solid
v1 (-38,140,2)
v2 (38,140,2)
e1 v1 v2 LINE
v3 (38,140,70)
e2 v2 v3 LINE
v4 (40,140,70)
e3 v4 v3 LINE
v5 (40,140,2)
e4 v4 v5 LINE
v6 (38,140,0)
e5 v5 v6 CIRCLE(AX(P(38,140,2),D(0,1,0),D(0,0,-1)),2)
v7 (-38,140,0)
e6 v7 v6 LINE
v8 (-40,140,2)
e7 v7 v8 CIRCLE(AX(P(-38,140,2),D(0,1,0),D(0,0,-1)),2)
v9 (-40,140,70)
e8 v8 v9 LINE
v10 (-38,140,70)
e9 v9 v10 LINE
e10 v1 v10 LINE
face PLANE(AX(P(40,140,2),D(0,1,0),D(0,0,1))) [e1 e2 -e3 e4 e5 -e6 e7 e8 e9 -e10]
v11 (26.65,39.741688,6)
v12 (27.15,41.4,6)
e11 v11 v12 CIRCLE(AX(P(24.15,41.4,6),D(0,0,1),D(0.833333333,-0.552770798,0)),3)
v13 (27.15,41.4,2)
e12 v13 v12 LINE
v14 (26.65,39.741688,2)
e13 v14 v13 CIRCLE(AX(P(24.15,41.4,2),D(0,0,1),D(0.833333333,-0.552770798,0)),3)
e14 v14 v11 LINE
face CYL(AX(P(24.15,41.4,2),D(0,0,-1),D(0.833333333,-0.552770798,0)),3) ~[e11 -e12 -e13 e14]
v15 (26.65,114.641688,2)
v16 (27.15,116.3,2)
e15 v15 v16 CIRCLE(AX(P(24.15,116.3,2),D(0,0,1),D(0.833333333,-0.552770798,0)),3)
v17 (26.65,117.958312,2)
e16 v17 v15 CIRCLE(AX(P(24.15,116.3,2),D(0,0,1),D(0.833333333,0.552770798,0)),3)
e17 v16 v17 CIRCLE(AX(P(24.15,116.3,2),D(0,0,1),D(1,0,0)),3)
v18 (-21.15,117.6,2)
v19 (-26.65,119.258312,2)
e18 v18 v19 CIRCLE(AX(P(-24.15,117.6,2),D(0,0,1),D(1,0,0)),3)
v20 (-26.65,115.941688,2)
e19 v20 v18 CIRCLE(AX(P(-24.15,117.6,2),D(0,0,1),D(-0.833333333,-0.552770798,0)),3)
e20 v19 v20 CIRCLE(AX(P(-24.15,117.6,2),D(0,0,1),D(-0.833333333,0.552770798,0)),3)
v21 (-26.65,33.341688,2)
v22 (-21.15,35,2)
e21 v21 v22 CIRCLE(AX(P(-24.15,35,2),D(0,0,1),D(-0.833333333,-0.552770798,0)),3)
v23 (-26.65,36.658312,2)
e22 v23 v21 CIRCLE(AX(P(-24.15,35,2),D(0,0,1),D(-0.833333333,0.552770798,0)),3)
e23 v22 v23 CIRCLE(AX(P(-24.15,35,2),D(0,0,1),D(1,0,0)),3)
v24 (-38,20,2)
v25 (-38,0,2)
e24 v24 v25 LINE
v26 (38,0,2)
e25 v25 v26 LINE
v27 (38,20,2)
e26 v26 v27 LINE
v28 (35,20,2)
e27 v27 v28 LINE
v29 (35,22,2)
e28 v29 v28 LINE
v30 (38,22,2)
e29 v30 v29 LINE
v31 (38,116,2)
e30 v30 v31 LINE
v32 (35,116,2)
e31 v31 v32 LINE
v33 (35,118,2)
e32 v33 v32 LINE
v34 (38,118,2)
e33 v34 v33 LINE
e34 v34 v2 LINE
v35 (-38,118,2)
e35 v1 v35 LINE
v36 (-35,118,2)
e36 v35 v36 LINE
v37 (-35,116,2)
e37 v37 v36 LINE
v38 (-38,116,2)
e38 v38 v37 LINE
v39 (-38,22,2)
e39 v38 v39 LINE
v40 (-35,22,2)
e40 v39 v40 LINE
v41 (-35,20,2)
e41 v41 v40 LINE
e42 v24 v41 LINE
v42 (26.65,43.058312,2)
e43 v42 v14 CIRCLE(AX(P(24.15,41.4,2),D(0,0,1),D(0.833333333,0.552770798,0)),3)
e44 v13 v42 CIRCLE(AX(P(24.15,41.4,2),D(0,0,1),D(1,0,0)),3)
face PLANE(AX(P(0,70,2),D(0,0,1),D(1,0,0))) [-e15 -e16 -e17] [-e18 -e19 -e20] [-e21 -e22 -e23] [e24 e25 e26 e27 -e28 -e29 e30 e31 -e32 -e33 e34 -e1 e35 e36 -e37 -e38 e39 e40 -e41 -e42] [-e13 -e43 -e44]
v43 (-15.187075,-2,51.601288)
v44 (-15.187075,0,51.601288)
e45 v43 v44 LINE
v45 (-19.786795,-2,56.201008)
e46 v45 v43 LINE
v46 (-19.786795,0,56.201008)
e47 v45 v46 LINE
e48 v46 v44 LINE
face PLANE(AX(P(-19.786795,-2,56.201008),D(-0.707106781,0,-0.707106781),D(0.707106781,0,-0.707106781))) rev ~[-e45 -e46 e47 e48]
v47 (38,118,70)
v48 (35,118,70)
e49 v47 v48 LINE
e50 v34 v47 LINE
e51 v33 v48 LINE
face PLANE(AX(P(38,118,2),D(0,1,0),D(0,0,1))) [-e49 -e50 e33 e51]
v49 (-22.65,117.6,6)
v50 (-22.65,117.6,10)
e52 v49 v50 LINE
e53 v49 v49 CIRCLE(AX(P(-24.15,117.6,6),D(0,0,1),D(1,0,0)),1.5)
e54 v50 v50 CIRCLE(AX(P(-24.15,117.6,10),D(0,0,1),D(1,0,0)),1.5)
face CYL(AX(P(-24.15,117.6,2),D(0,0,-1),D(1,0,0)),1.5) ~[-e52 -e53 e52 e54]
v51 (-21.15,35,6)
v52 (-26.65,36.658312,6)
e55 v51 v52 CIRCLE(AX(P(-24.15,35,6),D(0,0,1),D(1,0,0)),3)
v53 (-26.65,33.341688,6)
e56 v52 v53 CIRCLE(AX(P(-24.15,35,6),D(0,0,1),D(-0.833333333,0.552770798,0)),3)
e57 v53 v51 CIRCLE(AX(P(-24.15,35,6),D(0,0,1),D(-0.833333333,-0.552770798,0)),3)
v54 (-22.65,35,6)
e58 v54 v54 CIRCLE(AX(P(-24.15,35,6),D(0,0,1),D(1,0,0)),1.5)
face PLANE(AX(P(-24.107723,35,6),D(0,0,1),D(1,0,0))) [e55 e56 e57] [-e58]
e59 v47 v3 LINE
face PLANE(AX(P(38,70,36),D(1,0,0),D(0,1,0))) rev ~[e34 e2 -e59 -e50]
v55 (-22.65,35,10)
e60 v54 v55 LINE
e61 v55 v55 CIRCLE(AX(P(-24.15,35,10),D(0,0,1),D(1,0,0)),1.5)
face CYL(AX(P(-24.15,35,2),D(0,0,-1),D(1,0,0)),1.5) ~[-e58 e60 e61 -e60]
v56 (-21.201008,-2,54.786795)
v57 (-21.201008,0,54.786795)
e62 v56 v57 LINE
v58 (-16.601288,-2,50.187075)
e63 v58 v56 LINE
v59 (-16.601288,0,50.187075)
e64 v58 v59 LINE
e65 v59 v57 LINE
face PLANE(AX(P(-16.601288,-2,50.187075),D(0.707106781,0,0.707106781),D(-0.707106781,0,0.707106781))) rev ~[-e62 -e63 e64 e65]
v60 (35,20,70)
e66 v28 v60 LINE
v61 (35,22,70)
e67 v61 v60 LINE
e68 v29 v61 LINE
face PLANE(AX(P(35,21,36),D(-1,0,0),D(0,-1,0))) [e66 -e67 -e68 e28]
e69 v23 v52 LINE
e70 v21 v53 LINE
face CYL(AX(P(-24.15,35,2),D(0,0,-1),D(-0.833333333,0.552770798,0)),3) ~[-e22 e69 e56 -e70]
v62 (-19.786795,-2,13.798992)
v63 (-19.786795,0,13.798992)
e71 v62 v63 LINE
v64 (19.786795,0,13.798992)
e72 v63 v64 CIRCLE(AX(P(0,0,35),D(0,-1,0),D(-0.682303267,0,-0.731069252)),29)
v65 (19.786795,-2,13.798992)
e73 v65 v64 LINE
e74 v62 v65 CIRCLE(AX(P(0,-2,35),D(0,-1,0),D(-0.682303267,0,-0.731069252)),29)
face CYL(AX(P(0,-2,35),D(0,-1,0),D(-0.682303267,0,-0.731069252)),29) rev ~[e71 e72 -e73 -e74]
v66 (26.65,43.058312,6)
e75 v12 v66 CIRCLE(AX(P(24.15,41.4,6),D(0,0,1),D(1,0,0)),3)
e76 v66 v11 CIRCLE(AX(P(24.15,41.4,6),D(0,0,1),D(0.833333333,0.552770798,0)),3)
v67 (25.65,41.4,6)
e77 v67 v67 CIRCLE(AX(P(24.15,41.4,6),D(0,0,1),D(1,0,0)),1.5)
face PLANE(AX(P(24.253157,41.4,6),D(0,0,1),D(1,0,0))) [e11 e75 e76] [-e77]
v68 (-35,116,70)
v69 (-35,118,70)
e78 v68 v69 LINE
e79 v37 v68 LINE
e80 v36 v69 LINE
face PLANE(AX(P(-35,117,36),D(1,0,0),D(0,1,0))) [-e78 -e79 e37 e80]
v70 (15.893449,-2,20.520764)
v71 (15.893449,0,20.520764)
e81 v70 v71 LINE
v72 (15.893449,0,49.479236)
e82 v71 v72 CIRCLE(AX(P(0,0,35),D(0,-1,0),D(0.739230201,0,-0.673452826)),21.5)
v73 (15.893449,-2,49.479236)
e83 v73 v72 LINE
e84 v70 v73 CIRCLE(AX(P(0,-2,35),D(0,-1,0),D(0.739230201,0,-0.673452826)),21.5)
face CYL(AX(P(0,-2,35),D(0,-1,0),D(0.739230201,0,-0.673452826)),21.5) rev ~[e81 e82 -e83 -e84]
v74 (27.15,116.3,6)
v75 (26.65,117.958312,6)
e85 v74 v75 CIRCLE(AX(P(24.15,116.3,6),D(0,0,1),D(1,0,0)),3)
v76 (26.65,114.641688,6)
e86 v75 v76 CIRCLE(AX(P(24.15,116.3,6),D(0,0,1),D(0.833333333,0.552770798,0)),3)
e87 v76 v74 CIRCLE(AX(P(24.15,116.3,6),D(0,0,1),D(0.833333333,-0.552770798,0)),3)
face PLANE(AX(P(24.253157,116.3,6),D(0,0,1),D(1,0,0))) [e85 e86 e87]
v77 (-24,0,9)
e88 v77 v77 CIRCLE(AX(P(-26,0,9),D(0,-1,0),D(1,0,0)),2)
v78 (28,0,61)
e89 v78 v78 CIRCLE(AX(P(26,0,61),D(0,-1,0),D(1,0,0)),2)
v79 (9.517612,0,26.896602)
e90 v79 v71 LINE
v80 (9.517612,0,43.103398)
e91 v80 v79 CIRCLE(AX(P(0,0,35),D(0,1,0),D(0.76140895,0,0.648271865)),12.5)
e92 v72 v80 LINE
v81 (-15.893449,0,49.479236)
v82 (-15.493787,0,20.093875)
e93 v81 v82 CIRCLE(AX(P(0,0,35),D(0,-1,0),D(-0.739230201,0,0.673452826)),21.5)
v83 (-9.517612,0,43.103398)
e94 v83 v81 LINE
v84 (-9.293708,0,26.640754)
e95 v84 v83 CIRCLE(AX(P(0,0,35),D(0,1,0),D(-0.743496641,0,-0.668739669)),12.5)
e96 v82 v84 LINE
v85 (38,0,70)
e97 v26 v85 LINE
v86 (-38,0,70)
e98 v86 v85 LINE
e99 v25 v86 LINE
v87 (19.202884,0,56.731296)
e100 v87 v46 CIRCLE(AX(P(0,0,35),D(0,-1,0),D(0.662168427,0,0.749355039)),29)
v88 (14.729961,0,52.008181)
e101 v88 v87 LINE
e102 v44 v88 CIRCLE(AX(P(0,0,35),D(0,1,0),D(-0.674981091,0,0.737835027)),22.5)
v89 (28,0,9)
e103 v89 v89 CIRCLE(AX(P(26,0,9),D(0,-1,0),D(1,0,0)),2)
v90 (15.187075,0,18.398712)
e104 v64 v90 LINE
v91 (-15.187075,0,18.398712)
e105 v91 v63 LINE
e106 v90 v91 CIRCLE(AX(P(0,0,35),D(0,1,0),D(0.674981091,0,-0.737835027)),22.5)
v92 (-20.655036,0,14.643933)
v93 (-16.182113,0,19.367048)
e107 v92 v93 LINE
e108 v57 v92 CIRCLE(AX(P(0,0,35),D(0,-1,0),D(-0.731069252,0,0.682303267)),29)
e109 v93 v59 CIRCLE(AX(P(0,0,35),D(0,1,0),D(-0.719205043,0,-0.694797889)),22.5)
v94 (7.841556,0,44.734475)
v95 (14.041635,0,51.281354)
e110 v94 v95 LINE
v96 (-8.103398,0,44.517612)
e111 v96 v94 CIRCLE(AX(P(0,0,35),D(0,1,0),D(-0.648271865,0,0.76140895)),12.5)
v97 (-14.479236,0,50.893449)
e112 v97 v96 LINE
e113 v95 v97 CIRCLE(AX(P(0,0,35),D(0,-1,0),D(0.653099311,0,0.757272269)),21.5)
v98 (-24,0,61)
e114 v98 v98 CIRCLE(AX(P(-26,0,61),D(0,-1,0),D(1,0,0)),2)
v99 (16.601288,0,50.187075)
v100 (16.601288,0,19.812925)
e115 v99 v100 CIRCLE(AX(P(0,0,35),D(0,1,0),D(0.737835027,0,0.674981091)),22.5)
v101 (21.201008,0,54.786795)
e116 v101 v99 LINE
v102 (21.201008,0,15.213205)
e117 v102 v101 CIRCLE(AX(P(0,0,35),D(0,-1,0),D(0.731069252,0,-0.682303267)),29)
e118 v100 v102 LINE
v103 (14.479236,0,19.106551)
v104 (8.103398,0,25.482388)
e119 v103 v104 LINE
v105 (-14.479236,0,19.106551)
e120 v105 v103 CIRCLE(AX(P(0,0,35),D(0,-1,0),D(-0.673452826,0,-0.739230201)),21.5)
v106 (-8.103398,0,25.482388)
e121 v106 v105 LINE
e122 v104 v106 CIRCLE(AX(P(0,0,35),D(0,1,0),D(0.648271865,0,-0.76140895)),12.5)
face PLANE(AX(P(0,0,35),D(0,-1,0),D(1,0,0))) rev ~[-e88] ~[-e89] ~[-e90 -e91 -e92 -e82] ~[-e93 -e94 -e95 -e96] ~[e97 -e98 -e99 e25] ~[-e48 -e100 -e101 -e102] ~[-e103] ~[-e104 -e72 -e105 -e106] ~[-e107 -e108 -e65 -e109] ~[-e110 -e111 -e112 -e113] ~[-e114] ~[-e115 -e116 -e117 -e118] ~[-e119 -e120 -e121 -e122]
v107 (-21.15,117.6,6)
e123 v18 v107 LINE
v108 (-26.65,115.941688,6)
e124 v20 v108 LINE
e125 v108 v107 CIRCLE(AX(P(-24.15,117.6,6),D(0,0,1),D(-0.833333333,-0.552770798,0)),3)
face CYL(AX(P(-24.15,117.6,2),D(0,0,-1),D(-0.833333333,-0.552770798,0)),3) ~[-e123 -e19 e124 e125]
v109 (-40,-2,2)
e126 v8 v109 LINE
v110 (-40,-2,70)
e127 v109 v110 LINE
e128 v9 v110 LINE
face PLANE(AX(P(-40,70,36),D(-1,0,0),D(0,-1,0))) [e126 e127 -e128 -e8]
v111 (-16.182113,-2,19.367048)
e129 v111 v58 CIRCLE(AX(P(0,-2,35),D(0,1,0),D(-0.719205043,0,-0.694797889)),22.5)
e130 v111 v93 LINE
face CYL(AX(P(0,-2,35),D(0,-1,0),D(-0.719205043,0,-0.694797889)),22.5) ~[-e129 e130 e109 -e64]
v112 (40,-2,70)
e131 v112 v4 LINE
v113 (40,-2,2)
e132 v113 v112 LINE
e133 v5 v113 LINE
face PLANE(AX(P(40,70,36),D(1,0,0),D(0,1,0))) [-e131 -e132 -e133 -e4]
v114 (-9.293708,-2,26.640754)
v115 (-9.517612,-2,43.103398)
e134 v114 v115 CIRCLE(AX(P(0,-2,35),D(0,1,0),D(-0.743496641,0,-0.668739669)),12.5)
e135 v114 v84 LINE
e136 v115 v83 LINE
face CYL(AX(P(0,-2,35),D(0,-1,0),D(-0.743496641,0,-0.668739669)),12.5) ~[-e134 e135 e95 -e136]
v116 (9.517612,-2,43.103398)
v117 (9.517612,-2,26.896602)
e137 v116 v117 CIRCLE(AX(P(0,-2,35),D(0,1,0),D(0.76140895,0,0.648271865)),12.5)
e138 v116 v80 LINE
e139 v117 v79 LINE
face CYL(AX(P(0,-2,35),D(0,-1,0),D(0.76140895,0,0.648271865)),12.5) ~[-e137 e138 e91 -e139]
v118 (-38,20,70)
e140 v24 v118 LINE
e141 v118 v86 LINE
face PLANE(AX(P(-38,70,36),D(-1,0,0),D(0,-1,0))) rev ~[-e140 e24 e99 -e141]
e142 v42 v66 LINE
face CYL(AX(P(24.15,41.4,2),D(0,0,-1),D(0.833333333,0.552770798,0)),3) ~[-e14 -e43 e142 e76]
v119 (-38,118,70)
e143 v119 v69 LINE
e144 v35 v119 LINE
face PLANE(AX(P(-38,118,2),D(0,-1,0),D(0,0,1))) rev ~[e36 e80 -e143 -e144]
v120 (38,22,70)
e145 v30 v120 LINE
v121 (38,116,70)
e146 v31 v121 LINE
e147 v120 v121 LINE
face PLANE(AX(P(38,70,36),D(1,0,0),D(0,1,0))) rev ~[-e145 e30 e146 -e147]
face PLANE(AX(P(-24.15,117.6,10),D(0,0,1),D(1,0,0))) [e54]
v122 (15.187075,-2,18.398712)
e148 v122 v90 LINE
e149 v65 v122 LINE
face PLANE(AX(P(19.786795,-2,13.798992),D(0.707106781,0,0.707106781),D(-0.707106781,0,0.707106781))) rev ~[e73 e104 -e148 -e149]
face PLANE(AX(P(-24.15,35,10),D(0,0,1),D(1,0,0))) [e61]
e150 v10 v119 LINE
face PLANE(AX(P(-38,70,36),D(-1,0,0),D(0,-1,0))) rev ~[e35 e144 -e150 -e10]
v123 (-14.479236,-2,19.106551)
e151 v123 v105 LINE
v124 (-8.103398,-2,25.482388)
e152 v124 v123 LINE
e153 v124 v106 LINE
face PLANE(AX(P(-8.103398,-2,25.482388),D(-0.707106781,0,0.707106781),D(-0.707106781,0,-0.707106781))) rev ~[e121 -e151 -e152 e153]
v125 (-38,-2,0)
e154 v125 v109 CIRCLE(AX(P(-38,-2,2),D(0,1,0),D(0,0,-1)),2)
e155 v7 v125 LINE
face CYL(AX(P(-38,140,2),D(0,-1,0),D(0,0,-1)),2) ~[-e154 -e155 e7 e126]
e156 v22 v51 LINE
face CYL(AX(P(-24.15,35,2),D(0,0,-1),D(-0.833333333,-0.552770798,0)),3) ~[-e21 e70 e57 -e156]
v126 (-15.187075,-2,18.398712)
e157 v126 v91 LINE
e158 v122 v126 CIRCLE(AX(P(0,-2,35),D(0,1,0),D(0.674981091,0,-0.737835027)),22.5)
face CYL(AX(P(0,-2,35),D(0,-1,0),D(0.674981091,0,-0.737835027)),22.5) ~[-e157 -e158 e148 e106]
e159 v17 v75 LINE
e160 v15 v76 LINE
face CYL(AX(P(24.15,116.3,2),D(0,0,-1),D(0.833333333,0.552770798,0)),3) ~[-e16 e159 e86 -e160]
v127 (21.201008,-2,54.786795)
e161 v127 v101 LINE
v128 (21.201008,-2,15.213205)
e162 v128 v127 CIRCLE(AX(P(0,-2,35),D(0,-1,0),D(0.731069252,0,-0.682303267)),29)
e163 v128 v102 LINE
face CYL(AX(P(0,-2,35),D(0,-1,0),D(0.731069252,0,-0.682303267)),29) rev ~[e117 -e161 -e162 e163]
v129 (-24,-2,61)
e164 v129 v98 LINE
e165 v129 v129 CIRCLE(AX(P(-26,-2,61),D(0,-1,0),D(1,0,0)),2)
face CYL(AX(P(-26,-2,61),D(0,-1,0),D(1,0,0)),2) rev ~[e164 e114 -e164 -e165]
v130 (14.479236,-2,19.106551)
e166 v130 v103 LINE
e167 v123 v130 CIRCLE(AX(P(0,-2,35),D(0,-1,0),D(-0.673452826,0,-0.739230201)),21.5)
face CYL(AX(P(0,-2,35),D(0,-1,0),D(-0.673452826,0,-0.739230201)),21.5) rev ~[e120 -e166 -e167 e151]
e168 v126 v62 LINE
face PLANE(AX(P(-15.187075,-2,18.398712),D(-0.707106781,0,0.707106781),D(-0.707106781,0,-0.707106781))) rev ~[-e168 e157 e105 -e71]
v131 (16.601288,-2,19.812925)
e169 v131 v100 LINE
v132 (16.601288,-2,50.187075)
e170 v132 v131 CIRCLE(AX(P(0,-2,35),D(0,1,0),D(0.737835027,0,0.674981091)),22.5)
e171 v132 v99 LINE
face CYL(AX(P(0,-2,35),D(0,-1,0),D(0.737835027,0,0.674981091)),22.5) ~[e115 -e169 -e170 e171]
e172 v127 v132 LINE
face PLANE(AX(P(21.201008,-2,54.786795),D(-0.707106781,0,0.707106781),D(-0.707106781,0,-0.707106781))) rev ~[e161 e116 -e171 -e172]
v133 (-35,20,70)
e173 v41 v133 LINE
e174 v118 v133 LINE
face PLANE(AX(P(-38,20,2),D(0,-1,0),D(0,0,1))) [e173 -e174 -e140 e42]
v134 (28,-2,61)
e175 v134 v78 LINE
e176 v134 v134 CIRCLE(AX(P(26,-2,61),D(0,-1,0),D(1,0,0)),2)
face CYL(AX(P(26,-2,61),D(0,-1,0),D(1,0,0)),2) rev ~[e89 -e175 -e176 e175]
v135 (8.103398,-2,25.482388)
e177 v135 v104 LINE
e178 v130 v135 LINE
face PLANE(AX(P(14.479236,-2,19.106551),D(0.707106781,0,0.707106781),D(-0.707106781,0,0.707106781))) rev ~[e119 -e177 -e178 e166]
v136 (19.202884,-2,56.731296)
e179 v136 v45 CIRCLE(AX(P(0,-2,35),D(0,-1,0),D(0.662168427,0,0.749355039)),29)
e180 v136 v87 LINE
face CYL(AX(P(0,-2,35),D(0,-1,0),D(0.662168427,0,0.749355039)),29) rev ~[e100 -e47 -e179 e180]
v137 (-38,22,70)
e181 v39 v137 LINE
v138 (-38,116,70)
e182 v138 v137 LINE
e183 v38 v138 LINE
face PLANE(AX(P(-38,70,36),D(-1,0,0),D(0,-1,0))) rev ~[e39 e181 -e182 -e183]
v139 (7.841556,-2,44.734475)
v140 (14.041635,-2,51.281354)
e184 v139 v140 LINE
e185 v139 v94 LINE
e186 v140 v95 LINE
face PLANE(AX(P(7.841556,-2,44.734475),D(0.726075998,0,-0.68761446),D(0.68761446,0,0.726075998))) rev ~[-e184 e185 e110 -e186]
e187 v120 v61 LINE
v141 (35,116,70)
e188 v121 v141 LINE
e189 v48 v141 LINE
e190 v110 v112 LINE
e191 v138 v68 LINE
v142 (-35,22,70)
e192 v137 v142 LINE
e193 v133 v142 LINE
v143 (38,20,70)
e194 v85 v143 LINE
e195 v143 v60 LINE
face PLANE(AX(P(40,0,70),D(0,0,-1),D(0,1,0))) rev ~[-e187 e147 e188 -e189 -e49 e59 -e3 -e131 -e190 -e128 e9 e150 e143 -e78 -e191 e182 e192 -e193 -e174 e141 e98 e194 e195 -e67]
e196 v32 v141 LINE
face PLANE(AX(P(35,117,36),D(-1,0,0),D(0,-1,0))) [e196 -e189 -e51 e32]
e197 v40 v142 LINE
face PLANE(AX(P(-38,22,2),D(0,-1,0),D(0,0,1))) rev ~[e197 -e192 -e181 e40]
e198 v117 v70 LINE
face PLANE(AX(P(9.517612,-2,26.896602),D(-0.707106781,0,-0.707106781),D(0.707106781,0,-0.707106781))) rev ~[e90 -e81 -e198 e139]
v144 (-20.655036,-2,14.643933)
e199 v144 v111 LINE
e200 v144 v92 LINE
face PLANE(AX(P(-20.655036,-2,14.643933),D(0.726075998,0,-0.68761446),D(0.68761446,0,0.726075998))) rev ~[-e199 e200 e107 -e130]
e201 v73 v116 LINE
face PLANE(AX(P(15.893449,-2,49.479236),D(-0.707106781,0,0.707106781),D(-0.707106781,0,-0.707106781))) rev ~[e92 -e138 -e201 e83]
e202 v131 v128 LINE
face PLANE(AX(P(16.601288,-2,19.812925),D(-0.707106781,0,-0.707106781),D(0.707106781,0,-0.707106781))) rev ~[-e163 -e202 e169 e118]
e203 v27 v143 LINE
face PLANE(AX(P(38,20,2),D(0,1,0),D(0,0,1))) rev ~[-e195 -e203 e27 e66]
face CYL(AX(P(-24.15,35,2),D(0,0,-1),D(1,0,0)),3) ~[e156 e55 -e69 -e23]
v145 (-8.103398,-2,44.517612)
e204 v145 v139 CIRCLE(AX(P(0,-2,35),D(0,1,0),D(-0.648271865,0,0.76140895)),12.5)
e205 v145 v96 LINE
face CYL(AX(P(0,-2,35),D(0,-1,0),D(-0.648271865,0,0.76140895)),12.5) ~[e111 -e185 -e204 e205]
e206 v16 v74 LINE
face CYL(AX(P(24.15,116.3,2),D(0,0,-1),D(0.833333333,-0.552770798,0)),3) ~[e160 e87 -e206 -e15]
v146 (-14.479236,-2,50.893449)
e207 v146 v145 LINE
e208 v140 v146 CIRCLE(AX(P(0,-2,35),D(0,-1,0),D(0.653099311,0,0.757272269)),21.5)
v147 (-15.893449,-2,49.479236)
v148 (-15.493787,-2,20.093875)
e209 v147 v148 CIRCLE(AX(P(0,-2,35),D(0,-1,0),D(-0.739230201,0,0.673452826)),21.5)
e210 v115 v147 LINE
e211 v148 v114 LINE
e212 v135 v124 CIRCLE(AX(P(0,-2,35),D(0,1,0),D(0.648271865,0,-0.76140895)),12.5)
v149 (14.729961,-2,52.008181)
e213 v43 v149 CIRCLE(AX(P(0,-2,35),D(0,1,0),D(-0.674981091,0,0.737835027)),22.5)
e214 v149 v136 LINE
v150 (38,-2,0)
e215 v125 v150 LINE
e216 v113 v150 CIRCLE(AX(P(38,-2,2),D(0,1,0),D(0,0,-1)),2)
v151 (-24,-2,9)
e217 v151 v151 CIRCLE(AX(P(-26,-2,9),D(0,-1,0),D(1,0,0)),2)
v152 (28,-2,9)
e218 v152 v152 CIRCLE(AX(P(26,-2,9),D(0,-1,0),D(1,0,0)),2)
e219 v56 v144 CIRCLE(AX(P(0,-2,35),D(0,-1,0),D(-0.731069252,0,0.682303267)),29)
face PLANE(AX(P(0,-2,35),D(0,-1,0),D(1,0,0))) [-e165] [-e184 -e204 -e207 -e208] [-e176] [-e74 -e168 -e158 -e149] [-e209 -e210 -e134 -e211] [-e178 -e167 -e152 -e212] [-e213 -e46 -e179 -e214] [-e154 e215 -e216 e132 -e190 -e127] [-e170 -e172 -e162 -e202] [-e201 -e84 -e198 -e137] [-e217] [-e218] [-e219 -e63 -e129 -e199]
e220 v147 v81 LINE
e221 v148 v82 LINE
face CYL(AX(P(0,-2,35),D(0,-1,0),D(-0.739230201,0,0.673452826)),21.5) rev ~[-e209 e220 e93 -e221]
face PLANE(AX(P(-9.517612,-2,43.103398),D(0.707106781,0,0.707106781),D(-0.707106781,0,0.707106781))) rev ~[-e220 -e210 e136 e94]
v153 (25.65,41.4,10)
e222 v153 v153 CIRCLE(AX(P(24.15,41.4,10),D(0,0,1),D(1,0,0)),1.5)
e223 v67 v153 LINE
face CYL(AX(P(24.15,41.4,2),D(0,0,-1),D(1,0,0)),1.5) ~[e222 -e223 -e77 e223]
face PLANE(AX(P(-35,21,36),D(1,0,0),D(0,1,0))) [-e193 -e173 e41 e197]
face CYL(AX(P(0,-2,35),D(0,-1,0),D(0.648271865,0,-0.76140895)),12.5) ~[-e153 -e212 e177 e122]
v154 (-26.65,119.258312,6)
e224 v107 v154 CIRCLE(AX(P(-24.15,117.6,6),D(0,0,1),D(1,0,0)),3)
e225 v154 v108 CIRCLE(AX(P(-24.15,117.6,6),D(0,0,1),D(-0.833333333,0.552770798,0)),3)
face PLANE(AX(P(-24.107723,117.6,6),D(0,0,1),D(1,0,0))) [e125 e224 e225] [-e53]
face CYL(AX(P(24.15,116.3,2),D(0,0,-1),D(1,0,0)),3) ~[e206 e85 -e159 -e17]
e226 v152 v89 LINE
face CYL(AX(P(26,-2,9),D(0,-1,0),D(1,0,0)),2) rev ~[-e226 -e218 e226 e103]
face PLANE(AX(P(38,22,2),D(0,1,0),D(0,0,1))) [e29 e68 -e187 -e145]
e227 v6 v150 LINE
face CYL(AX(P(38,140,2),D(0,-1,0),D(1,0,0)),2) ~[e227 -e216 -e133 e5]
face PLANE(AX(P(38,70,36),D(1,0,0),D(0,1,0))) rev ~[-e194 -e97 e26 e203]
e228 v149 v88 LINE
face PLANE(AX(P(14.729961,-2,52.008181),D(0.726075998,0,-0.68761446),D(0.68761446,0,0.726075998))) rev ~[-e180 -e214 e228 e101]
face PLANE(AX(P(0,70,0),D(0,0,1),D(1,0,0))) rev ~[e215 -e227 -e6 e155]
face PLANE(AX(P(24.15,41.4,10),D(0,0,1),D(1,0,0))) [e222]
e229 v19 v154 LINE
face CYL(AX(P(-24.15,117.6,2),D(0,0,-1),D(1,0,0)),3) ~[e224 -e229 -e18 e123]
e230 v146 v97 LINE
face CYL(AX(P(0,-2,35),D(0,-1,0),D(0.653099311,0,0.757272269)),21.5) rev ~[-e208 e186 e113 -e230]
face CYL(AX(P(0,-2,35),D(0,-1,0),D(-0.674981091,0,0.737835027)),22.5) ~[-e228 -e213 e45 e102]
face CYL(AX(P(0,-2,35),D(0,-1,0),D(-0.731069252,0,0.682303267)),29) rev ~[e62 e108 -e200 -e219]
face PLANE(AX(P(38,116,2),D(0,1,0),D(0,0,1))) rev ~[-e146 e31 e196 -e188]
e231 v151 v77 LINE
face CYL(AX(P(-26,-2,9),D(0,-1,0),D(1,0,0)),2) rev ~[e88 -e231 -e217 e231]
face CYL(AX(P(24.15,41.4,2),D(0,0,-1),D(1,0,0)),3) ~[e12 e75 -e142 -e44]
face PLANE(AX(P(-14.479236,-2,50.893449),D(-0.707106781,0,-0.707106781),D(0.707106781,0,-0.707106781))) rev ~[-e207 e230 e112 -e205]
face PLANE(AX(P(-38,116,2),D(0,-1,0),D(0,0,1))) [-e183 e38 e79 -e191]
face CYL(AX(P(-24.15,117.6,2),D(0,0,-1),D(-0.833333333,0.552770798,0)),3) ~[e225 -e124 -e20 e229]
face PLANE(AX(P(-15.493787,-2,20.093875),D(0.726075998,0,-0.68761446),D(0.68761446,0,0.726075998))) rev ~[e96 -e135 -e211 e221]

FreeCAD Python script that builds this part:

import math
import FreeCAD as App
import Part
import Sketcher
from FreeCAD import Vector
Q = App.Units.Quantity


def edges_at(feature, points):
    """Names of the edges that pass closest to the given points."""
    edges = feature.Shape.Edges
    near = lambda p: min(range(len(edges)), key=lambda i: edges[i].distToShape(Part.Vertex(*p))[0])
    return sorted({f"Edge{near(p) + 1}" for p in points})

doc = App.newDocument("Part")
body = doc.addObject("PartDesign::Body", "Body")

sketch1 = body.newObject("Sketcher::SketchObject", "Sketch")
sketch1.AttachmentSupport = (doc.getObject("XZ_Plane"), [""])
sketch1.MapMode = "FlatFace"
sketch1.addGeometry(Part.LineSegment(Vector(-40, 70, 0), Vector(-40, 0, 0)), False)
sketch1.addGeometry(Part.LineSegment(Vector(-40, 0, 0), Vector(40, 0, 0)), False)
sketch1.addGeometry(Part.LineSegment(Vector(40, 0, 0), Vector(40, 70, 0)), False)
sketch1.addGeometry(Part.LineSegment(Vector(40, 70, 0), Vector(-40, 70, 0)), False)
sketch1.addConstraint(Sketcher.Constraint("Coincident", 0, 2, 1, 1))
sketch1.addConstraint(Sketcher.Constraint("Coincident", 1, 2, 2, 1))
sketch1.addConstraint(Sketcher.Constraint("Coincident", 2, 2, 3, 1))
sketch1.addConstraint(Sketcher.Constraint("Coincident", 3, 2, 0, 1))
sketch1.addConstraint(Sketcher.Constraint("Vertical", 0))
sketch1.addConstraint(Sketcher.Constraint("Horizontal", 1))
sketch1.addConstraint(Sketcher.Constraint("Vertical", 2))
sketch1.addConstraint(Sketcher.Constraint("Horizontal", 3))
sketch1.addConstraint(Sketcher.Constraint("Symmetric", 0, 2, 1, 2, -1, 1))
sketch1.addConstraint(Sketcher.Constraint("DistanceX", 1, 1, 1, 2, Q("80 mm")))
sketch1.addConstraint(Sketcher.Constraint("DistanceY", 0, 2, 0, 1, Q("70 mm")))
pad1 = body.newObject("PartDesign::Pad", "Pad")
pad1.Profile = sketch1
pad1.Length = 2

sketch2 = body.newObject("Sketcher::SketchObject", "Sketch001")
sketch2.AttachmentSupport = (doc.getObject("XY_Plane"), [""])
sketch2.MapMode = "FlatFace"
sketch2.addGeometry(Part.LineSegment(Vector(-40, 140, 0), Vector(-40, 0, 0)), False)
sketch2.addGeometry(Part.LineSegment(Vector(-40, 0, 0), Vector(40, 0, 0)), False)
sketch2.addGeometry(Part.LineSegment(Vector(40, 0, 0), Vector(40, 140, 0)), False)
sketch2.addGeometry(Part.LineSegment(Vector(40, 140, 0), Vector(-40, 140, 0)), False)
sketch2.addConstraint(Sketcher.Constraint("Coincident", 0, 2, 1, 1))
sketch2.addConstraint(Sketcher.Constraint("Coincident", 1, 2, 2, 1))
sketch2.addConstraint(Sketcher.Constraint("Coincident", 2, 2, 3, 1))
sketch2.addConstraint(Sketcher.Constraint("Coincident", 3, 2, 0, 1))
sketch2.addConstraint(Sketcher.Constraint("Vertical", 0))
sketch2.addConstraint(Sketcher.Constraint("Horizontal", 1))
sketch2.addConstraint(Sketcher.Constraint("Vertical", 2))
sketch2.addConstraint(Sketcher.Constraint("Horizontal", 3))
sketch2.addConstraint(Sketcher.Constraint("Symmetric", 0, 2, 1, 2, -1, 1))
sketch2.addConstraint(Sketcher.Constraint("DistanceX", 1, 1, 1, 2, Q("80 mm")))
sketch2.addConstraint(Sketcher.Constraint("DistanceY", 0, 2, 0, 1, Q("140 mm")))
pad2 = body.newObject("PartDesign::Pad", "Pad001")
pad2.Profile = sketch2
pad2.Length = 2

sketch3 = body.newObject("Sketcher::SketchObject", "Sketch002")
sketch3.AttachmentSupport = (doc.getObject("YZ_Plane"), [""])
sketch3.MapMode = "FlatFace"
sketch3.AttachmentOffset = App.Placement(Vector(0, 0, -40), App.Rotation())
sketch3.addGeometry(Part.LineSegment(Vector(140, 70, 0), Vector(140, 2, 0)), False)
sketch3.addGeometry(Part.LineSegment(Vector(140, 2, 0), Vector(0, 2, 0)), False)
sketch3.addGeometry(Part.LineSegment(Vector(0, 2, 0), Vector(0, 70, 0)), False)
sketch3.addGeometry(Part.LineSegment(Vector(0, 70, 0), Vector(140, 70, 0)), False)
sketch3.addConstraint(Sketcher.Constraint("Coincident", 0, 2, 1, 1))
sketch3.addConstraint(Sketcher.Constraint("Coincident", 1, 2, 2, 1))
sketch3.addConstraint(Sketcher.Constraint("Coincident", 2, 2, 3, 1))
sketch3.addConstraint(Sketcher.Constraint("Coincident", 3, 2, 0, 1))
sketch3.addConstraint(Sketcher.Constraint("Vertical", 0))
sketch3.addConstraint(Sketcher.Constraint("Horizontal", 1))
sketch3.addConstraint(Sketcher.Constraint("Vertical", 2))
sketch3.addConstraint(Sketcher.Constraint("Horizontal", 3))
sketch3.addConstraint(Sketcher.Constraint("PointOnObject", 1, 2, -2))
sketch3.addConstraint(Sketcher.Constraint("DistanceX", 1, 2, 1, 1, Q("140 mm")))
sketch3.addConstraint(Sketcher.Constraint("DistanceY", 0, 2, 0, 1, Q("68 mm")))
sketch3.addConstraint(Sketcher.Constraint("DistanceY", -1, 1, 0, 2, Q("2 mm")))
pad3 = body.newObject("PartDesign::Pad", "Pad002")
pad3.Profile = sketch3
pad3.Length = 2

sketch4 = body.newObject("Sketcher::SketchObject", "Sketch003")
sketch4.AttachmentSupport = (doc.getObject("YZ_Plane"), [""])
sketch4.MapMode = "FlatFace"
sketch4.AttachmentOffset = App.Placement(Vector(0, 0, 40), App.Rotation())
sketch4.addGeometry(Part.LineSegment(Vector(0, 70, 0), Vector(0, 2, 0)), False)
sketch4.addGeometry(Part.LineSegment(Vector(0, 2, 0), Vector(140, 2, 0)), False)
sketch4.addGeometry(Part.LineSegment(Vector(140, 2, 0), Vector(140, 70, 0)), False)
sketch4.addGeometry(Part.LineSegment(Vector(140, 70, 0), Vector(0, 70, 0)), False)
sketch4.addConstraint(Sketcher.Constraint("Coincident", 0, 2, 1, 1))
sketch4.addConstraint(Sketcher.Constraint("Coincident", 1, 2, 2, 1))
sketch4.addConstraint(Sketcher.Constraint("Coincident", 2, 2, 3, 1))
sketch4.addConstraint(Sketcher.Constraint("Coincident", 3, 2, 0, 1))
sketch4.addConstraint(Sketcher.Constraint("Vertical", 0))
sketch4.addConstraint(Sketcher.Constraint("Horizontal", 1))
sketch4.addConstraint(Sketcher.Constraint("Vertical", 2))
sketch4.addConstraint(Sketcher.Constraint("Horizontal", 3))
sketch4.addConstraint(Sketcher.Constraint("PointOnObject", 0, 2, -2))
sketch4.addConstraint(Sketcher.Constraint("DistanceX", 1, 1, 1, 2, Q("140 mm")))
sketch4.addConstraint(Sketcher.Constraint("DistanceY", 0, 2, 0, 1, Q("68 mm")))
sketch4.addConstraint(Sketcher.Constraint("DistanceY", -1, 1, 0, 2, Q("2 mm")))
pad4 = body.newObject("PartDesign::Pad", "Pad003")
pad4.Profile = sketch4
pad4.Length = 2
pad4.Reversed = True

sketch5 = body.newObject("Sketcher::SketchObject", "Sketch004")
sketch5.AttachmentSupport = (doc.getObject("XZ_Plane"), [""])
sketch5.MapMode = "FlatFace"
sketch5.AttachmentOffset = App.Placement(Vector(0, 0, 2), App.Rotation())
sketch5.addGeometry(Part.LineSegment(Vector(-9.5, 43.1, 0), Vector(-15.9, 49.5, 0)), False)
sketch5.addGeometry(Part.ArcOfCircle(Part.Circle(Vector(0, 35, 0), Vector(0, 0, 1), 21.5), math.radians(138), math.radians(224)), False)
sketch5.addGeometry(Part.LineSegment(Vector(-15.5, 20.1, 0), Vector(-9.3, 26.6, 0)), False)
sketch5.addGeometry(Part.ArcOfCircle(Part.Circle(Vector(0, 35, 0), Vector(0, 0, 1), 12.5), math.radians(140), math.radians(222)), False)
sketch5.addGeometry(Part.LineSegment(Vector(-16.6, 50.2, 0), Vector(-21.2, 54.8, 0)), False)
sketch5.addGeometry(Part.ArcOfCircle(Part.Circle(Vector(0, 35, 0), Vector(0, 0, 1), 29), math.radians(137), math.radians(225)), False)
sketch5.addGeometry(Part.LineSegment(Vector(-20.7, 14.6, 0), Vector(-16.2, 19.4, 0)), False)
sketch5.addGeometry(Part.ArcOfCircle(Part.Circle(Vector(0, 35, 0), Vector(0, 0, 1), 22.5), math.radians(138), math.radians(224)), False)
sketch5.addGeometry(Part.Circle(Vector(-26, 61, 0), Vector(0, 0, 1), 2), False)
sketch5.addGeometry(Part.ArcOfCircle(Part.Circle(Vector(0, 35, 0), Vector(0, 0, 1), 29), math.radians(49), math.radians(133)), False)
sketch5.addGeometry(Part.LineSegment(Vector(-19.8, 56.2, 0), Vector(-15.2, 51.6, 0)), False)
sketch5.addGeometry(Part.ArcOfCircle(Part.Circle(Vector(0, 35, 0), Vector(0, 0, 1), 22.5), math.radians(49), math.radians(132)), False)
sketch5.addGeometry(Part.LineSegment(Vector(14.7, 52, 0), Vector(19.2, 56.7, 0)), False)
sketch5.addGeometry(Part.ArcOfCircle(Part.Circle(Vector(0, 35, 0), Vector(0, 0, 1), 21.5), math.radians(49), math.radians(132)), False)
sketch5.addGeometry(Part.LineSegment(Vector(-14.5, 50.9, 0), Vector(-8.1, 44.5, 0)), False)
sketch5.addGeometry(Part.ArcOfCircle(Part.Circle(Vector(0, 35, 0), Vector(0, 0, 1), 12.5), math.radians(51), math.radians(130)), False)
sketch5.addGeometry(Part.LineSegment(Vector(7.8, 44.7, 0), Vector(14, 51.3, 0)), False)
sketch5.addGeometry(Part.LineSegment(Vector(9.5, 26.9, 0), Vector(15.9, 20.5, 0)), False)
sketch5.addGeometry(Part.ArcOfCircle(Part.Circle(Vector(0, 35, 0), Vector(0, 0, 1), 21.5), math.radians(-42), math.radians(42)), False)
sketch5.addGeometry(Part.LineSegment(Vector(15.9, 49.5, 0), Vector(9.5, 43.1, 0)), False)
sketch5.addGeometry(Part.ArcOfCircle(Part.Circle(Vector(0, 35, 0), Vector(0, 0, 1), 12.5), math.radians(-40), math.radians(40)), False)
sketch5.addGeometry(Part.LineSegment(Vector(21.2, 54.8, 0), Vector(16.6, 50.2, 0)), False)
sketch5.addGeometry(Part.ArcOfCircle(Part.Circle(Vector(0, 35, 0), Vector(0, 0, 1), 22.5), math.radians(-42), math.radians(42)), False)
sketch5.addGeometry(Part.LineSegment(Vector(16.6, 19.8, 0), Vector(21.2, 15.2, 0)), False)
sketch5.addGeometry(Part.ArcOfCircle(Part.Circle(Vector(0, 35, 0), Vector(0, 0, 1), 29), math.radians(-43), math.radians(43)), False)
sketch5.addGeometry(Part.Circle(Vector(26, 61, 0), Vector(0, 0, 1), 2), False)
sketch5.addGeometry(Part.Circle(Vector(26, 9, 0), Vector(0, 0, 1), 2), False)
sketch5.addGeometry(Part.LineSegment(Vector(-15.2, 18.4, 0), Vector(-19.8, 13.8, 0)), False)
sketch5.addGeometry(Part.ArcOfCircle(Part.Circle(Vector(0, 35, 0), Vector(0, 0, 1), 29), math.radians(-133), math.radians(-47)), False)
sketch5.addGeometry(Part.LineSegment(Vector(19.8, 13.8, 0), Vector(15.2, 18.4, 0)), False)
sketch5.addGeometry(Part.ArcOfCircle(Part.Circle(Vector(0, 35, 0), Vector(0, 0, 1), 22.5), math.radians(-132), math.radians(-48)), False)
sketch5.addGeometry(Part.ArcOfCircle(Part.Circle(Vector(0, 35, 0), Vector(0, 0, 1), 12.5), math.radians(-130), math.radians(-50)), False)
sketch5.addGeometry(Part.LineSegment(Vector(-8.1, 25.5, 0), Vector(-14.5, 19.1, 0)), False)
sketch5.addGeometry(Part.ArcOfCircle(Part.Circle(Vector(0, 35, 0), Vector(0, 0, 1), 21.5), math.radians(-132), math.radians(-48)), False)
sketch5.addGeometry(Part.LineSegment(Vector(14.5, 19.1, 0), Vector(8.1, 25.5, 0)), False)
sketch5.addGeometry(Part.Circle(Vector(-26, 9, 0), Vector(0, 0, 1), 2), False)
sketch5.addConstraint(Sketcher.Constraint("Coincident", 0, 2, 1, 1))
sketch5.addConstraint(Sketcher.Constraint("Coincident", 1, 2, 2, 1))
sketch5.addConstraint(Sketcher.Constraint("Coincident", 2, 2, 3, 2))
sketch5.addConstraint(Sketcher.Constraint("Coincident", 3, 1, 0, 1))
sketch5.addConstraint(Sketcher.Constraint("Coincident", 4, 2, 5, 1))
sketch5.addConstraint(Sketcher.Constraint("Coincident", 5, 2, 6, 1))
sketch5.addConstraint(Sketcher.Constraint("Coincident", 6, 2, 7, 2))
sketch5.addConstraint(Sketcher.Constraint("Coincident", 7, 1, 4, 1))
sketch5.addConstraint(Sketcher.Constraint("Coincident", 9, 2, 10, 1))
sketch5.addConstraint(Sketcher.Constraint("Coincident", 10, 2, 11, 2))
sketch5.addConstraint(Sketcher.Constraint("Coincident", 11, 1, 12, 1))
sketch5.addConstraint(Sketcher.Constraint("Coincident", 12, 2, 9, 1))
sketch5.addConstraint(Sketcher.Constraint("Coincident", 13, 2, 14, 1))
sketch5.addConstraint(Sketcher.Constraint("Coincident", 14, 2, 15, 2))
sketch5.addConstraint(Sketcher.Constraint("Coincident", 15, 1, 16, 1))
sketch5.addConstraint(Sketcher.Constraint("Coincident", 16, 2, 13, 1))
sketch5.addConstraint(Sketcher.Constraint("Coincident", 17, 2, 18, 1))
sketch5.addConstraint(Sketcher.Constraint("Coincident", 18, 2, 19, 1))
sketch5.addConstraint(Sketcher.Constraint("Coincident", 19, 2, 20, 2))
sketch5.addConstraint(Sketcher.Constraint("Coincident", 20, 1, 17, 1))
sketch5.addConstraint(Sketcher.Constraint("Coincident", 21, 2, 22, 2))
sketch5.addConstraint(Sketcher.Constraint("Coincident", 22, 1, 23, 1))
sketch5.addConstraint(Sketcher.Constraint("Coincident", 23, 2, 24, 1))
sketch5.addConstraint(Sketcher.Constraint("Coincident", 24, 2, 21, 1))
sketch5.addConstraint(Sketcher.Constraint("Coincident", 27, 2, 28, 1))
sketch5.addConstraint(Sketcher.Constraint("Coincident", 28, 2, 29, 1))
sketch5.addConstraint(Sketcher.Constraint("Coincident", 29, 2, 30, 2))
sketch5.addConstraint(Sketcher.Constraint("Coincident", 30, 1, 27, 1))
sketch5.addConstraint(Sketcher.Constraint("Coincident", 31, 1, 32, 1))
sketch5.addConstraint(Sketcher.Constraint("Coincident", 32, 2, 33, 1))
sketch5.addConstraint(Sketcher.Constraint("Coincident", 33, 2, 34, 1))
sketch5.addConstraint(Sketcher.Constraint("Coincident", 34, 2, 31, 2))
sketch5.addConstraint(Sketcher.Constraint("Coincident", 3, 3, 1, 3))
sketch5.addConstraint(Sketcher.Constraint("Coincident", 5, 3, 1, 3))
sketch5.addConstraint(Sketcher.Constraint("Coincident", 7, 3, 1, 3))
sketch5.addConstraint(Sketcher.Constraint("Coincident", 9, 3, 1, 3))
sketch5.addConstraint(Sketcher.Constraint("Coincident", 11, 3, 1, 3))
sketch5.addConstraint(Sketcher.Constraint("Coincident", 13, 3, 1, 3))
sketch5.addConstraint(Sketcher.Constraint("Coincident", 15, 3, 1, 3))
sketch5.addConstraint(Sketcher.Constraint("Coincident", 18, 3, 1, 3))
sketch5.addConstraint(Sketcher.Constraint("Coincident", 20, 3, 1, 3))
sketch5.addConstraint(Sketcher.Constraint("Coincident", 22, 3, 1, 3))
sketch5.addConstraint(Sketcher.Constraint("Coincident", 24, 3, 1, 3))
sketch5.addConstraint(Sketcher.Constraint("Coincident", 28, 3, 1, 3))
sketch5.addConstraint(Sketcher.Constraint("Coincident", 30, 3, 1, 3))
sketch5.addConstraint(Sketcher.Constraint("Coincident", 31, 3, 1, 3))
sketch5.addConstraint(Sketcher.Constraint("Coincident", 33, 3, 1, 3))
sketch5.addConstraint(Sketcher.Constraint("Equal", 5, 9))
sketch5.addConstraint(Sketcher.Constraint("Equal", 7, 11))
sketch5.addConstraint(Sketcher.Constraint("Equal", 1, 13))
sketch5.addConstraint(Sketcher.Constraint("Equal", 3, 15))
sketch5.addConstraint(Sketcher.Constraint("Equal", 13, 18))
sketch5.addConstraint(Sketcher.Constraint("Equal", 15, 20))
sketch5.addConstraint(Sketcher.Constraint("Equal", 11, 22))
sketch5.addConstraint(Sketcher.Constraint("Equal", 9, 24))
sketch5.addConstraint(Sketcher.Constraint("Equal", 8, 25))
sketch5.addConstraint(Sketcher.Constraint("Equal", 25, 26))
sketch5.addConstraint(Sketcher.Constraint("Equal", 24, 28))
sketch5.addConstraint(Sketcher.Constraint("Equal", 22, 30))
sketch5.addConstraint(Sketcher.Constraint("Equal", 20, 31))
sketch5.addConstraint(Sketcher.Constraint("Equal", 18, 33))
sketch5.addConstraint(Sketcher.Constraint("Equal", 26, 35))
sketch5.addConstraint(Sketcher.Constraint("Symmetric", 8, 3, 25, 3, -2))
sketch5.addConstraint(Sketcher.Constraint("Symmetric", 26, 3, 35, 3, -2))
sketch5.addConstraint(Sketcher.Constraint("Symmetric", 0, 2, 18, 2, -2))
sketch5.addConstraint(Sketcher.Constraint("Parallel", 0, 4))
sketch5.addConstraint(Sketcher.Constraint("Parallel", 2, 6))
sketch5.addConstraint(Sketcher.Constraint("Parallel", 4, 10))
sketch5.addConstraint(Sketcher.Constraint("Parallel", 6, 12))
sketch5.addConstraint(Sketcher.Constraint("Parallel", 10, 14))
sketch5.addConstraint(Sketcher.Constraint("Parallel", 12, 16))
sketch5.addConstraint(Sketcher.Constraint("Parallel", 14, 17))
sketch5.addConstraint(Sketcher.Constraint("Perpendicular", 17, 19))
sketch5.addConstraint(Sketcher.Constraint("Parallel", 19, 21))
sketch5.addConstraint(Sketcher.Constraint("Perpendicular", 21, 23))
sketch5.addConstraint(Sketcher.Constraint("Perpendicular", 23, 27))
sketch5.addConstraint(Sketcher.Constraint("Perpendicular", 27, 29))
sketch5.addConstraint(Sketcher.Constraint("Perpendicular", 29, 32))
sketch5.addConstraint(Sketcher.Constraint("Perpendicular", 32, 34))
sketch5.addConstraint(Sketcher.Constraint("Horizontal", 3, 1, 19, 2))
sketch5.addConstraint(Sketcher.Constraint("Horizontal", 7, 1, 21, 2))
sketch5.addConstraint(Sketcher.Constraint("Horizontal", 27, 2, 28, 2))
sketch5.addConstraint(Sketcher.Constraint("Horizontal", 32, 2, 33, 2))
sketch5.addConstraint(Sketcher.Constraint("Vertical", 25, 3, 26, 3))
sketch5.addConstraint(Sketcher.Constraint("Vertical", 17, 2, 18, 2))
sketch5.addConstraint(Sketcher.Constraint("Vertical", 21, 2, 22, 1))
sketch5.addConstraint(Sketcher.Constraint("Vertical", 9, 2, 27, 2))
sketch5.addConstraint(Sketcher.Constraint("Vertical", 14, 2, 31, 1))
sketch5.addConstraint(Sketcher.Constraint("Equal", 0, 2))
sketch5.addConstraint(Sketcher.Constraint("Equal", 4, 6))
sketch5.addConstraint(Sketcher.Constraint("Equal", 6, 10))
sketch5.addConstraint(Sketcher.Constraint("Equal", 10, 12))
sketch5.addConstraint(Sketcher.Constraint("Equal", 2, 14))
sketch5.addConstraint(Sketcher.Constraint("Equal", 14, 16))
sketch5.addConstraint(Sketcher.Constraint("Diameter", 8, Q("4 mm")))
sketch5.addConstraint(Sketcher.Constraint("Radius", 5, Q("29 mm")))
sketch5.addConstraint(Sketcher.Constraint("Radius", 1, Q("21.5 mm")))
sketch5.addConstraint(Sketcher.Constraint("Radius", 3, Q("12.5 mm")))
sketch5.addConstraint(Sketcher.Constraint("Radius", 7, Q("22.5 mm")))
sketch5.addConstraint(Sketcher.Constraint("DistanceY", -1, 1, 1, 3, Q("35 mm")))
sketch5.addConstraint(Sketcher.Constraint("DistanceX", 8, 3, -1, 1, Q("26 mm")))
sketch5.addConstraint(Sketcher.Constraint("DistanceY", -1, 1, 8, 3, Q("61 mm")))
sketch5.addConstraint(Sketcher.Constraint("DistanceY", -1, 1, 26, 3, Q("9 mm")))
sketch5.addConstraint(Sketcher.Constraint("DistanceY", -1, 1, 3, 1, Q("43.103398 mm")))
sketch5.addConstraint(Sketcher.Constraint("DistanceY", 24, 2, 12, 2, Q("1.944501 mm")))
sketch5.addConstraint(Sketcher.Constraint("DistanceX", 5, 2, 32, 2, Q("6.175801 mm")))
pocket1 = body.newObject("PartDesign::Pocket", "Pocket")
pocket1.Profile = sketch5
pocket1.Length = 2
doc.recompute()

fillet = body.newObject("PartDesign::Fillet", "Fillet")
fillet.Base = (pocket1, edges_at(pocket1, [(40, 69, 0), (-40, 69, 0)]))
fillet.Radius = 2

sketch6 = body.newObject("Sketcher::SketchObject", "Sketch005")
sketch6.AttachmentSupport = (doc.getObject("XY_Plane"), [""])
sketch6.MapMode = "FlatFace"
sketch6.AttachmentOffset = App.Placement(Vector(0, 0, 2), App.Rotation())
sketch6.addGeometry(Part.ArcOfCircle(Part.Circle(Vector(-24.1, 117.6, 0), Vector(0, 0, 1), 3), math.radians(0), math.radians(146)), False)
sketch6.addGeometry(Part.ArcOfCircle(Part.Circle(Vector(-24.1, 117.6, 0), Vector(0, 0, 1), 3), math.radians(146), math.radians(214)), False)
sketch6.addGeometry(Part.ArcOfCircle(Part.Circle(Vector(-24.1, 117.6, 0), Vector(0, 0, 1), 3), math.radians(-146), math.radians(0)), False)
sketch6.addGeometry(Part.Circle(Vector(-24.1, 117.6, 0), Vector(0, 0, 1), 1.5), False)
sketch6.addGeometry(Part.ArcOfCircle(Part.Circle(Vector(24.1, 116.3, 0), Vector(0, 0, 1), 3), math.radians(34), math.radians(326)), False)
sketch6.addGeometry(Part.ArcOfCircle(Part.Circle(Vector(24.2, 116.3, 0), Vector(0, 0, 1), 3), math.radians(-34), math.radians(0)), False)
sketch6.addGeometry(Part.ArcOfCircle(Part.Circle(Vector(24.2, 116.3, 0), Vector(0, 0, 1), 3), math.radians(0), math.radians(34)), False)
sketch6.addGeometry(Part.ArcOfCircle(Part.Circle(Vector(-24.1, 35, 0), Vector(0, 0, 1), 3), math.radians(0), math.radians(146)), False)
sketch6.addGeometry(Part.ArcOfCircle(Part.Circle(Vector(-24.1, 35, 0), Vector(0, 0, 1), 3), math.radians(146), math.radians(214)), False)
sketch6.addGeometry(Part.ArcOfCircle(Part.Circle(Vector(-24.1, 35, 0), Vector(0, 0, 1), 3), math.radians(-146), math.radians(0)), False)
sketch6.addGeometry(Part.Circle(Vector(-24.1, 35, 0), Vector(0, 0, 1), 1.5), False)
sketch6.addGeometry(Part.ArcOfCircle(Part.Circle(Vector(24.1, 41.4, 0), Vector(0, 0, 1), 3), math.radians(34), math.radians(326)), False)
sketch6.addGeometry(Part.ArcOfCircle(Part.Circle(Vector(24.2, 41.4, 0), Vector(0, 0, 1), 3), math.radians(-34), math.radians(0)), False)
sketch6.addGeometry(Part.ArcOfCircle(Part.Circle(Vector(24.2, 41.4, 0), Vector(0, 0, 1), 3), math.radians(0), math.radians(34)), False)
sketch6.addGeometry(Part.Circle(Vector(24.1, 41.4, 0), Vector(0, 0, 1), 1.5), False)
sketch6.addConstraint(Sketcher.Constraint("Tangent", 0, 2, 1, 1))
sketch6.addConstraint(Sketcher.Constraint("Tangent", 1, 2, 2, 1))
sketch6.addConstraint(Sketcher.Constraint("Tangent", 2, 2, 0, 1))
sketch6.addConstraint(Sketcher.Constraint("Tangent", 4, 2, 5, 1))
sketch6.addConstraint(Sketcher.Constraint("Tangent", 5, 2, 6, 1))
sketch6.addConstraint(Sketcher.Constraint("Tangent", 6, 2, 4, 1))
sketch6.addConstraint(Sketcher.Constraint("Tangent", 7, 2, 8, 1))
sketch6.addConstraint(Sketcher.Constraint("Tangent", 8, 2, 9, 1))
sketch6.addConstraint(Sketcher.Constraint("Tangent", 9, 2, 7, 1))
sketch6.addConstraint(Sketcher.Constraint("Tangent", 11, 2, 12, 1))
sketch6.addConstraint(Sketcher.Constraint("Tangent", 12, 2, 13, 1))
sketch6.addConstraint(Sketcher.Constraint("Tangent", 13, 2, 11, 1))
sketch6.addConstraint(Sketcher.Constraint("Coincident", 3, 3, 0, 3))
sketch6.addConstraint(Sketcher.Constraint("Coincident", 10, 3, 7, 3))
sketch6.addConstraint(Sketcher.Constraint("Coincident", 14, 3, 11, 3))
sketch6.addConstraint(Sketcher.Constraint("Equal", 2, 4))
sketch6.addConstraint(Sketcher.Constraint("Equal", 6, 7))
sketch6.addConstraint(Sketcher.Constraint("Equal", 3, 10))
sketch6.addConstraint(Sketcher.Constraint("Equal", 9, 11))
sketch6.addConstraint(Sketcher.Constraint("Equal", 10, 14))
sketch6.addConstraint(Sketcher.Constraint("Horizontal", 3, 3, 2, 2))
sketch6.addConstraint(Sketcher.Constraint("Horizontal", 6, 3, 5, 2))
sketch6.addConstraint(Sketcher.Constraint("Horizontal", 10, 3, 9, 2))
sketch6.addConstraint(Sketcher.Constraint("Horizontal", 14, 3, 12, 2))
sketch6.addConstraint(Sketcher.Constraint("Vertical", 3, 3, 7, 3))
sketch6.addConstraint(Sketcher.Constraint("Vertical", 6, 3, 11, 3))
sketch6.addConstraint(Sketcher.Constraint("Vertical", 0, 2, 1, 2))
sketch6.addConstraint(Sketcher.Constraint("Vertical", 4, 2, 6, 2))
sketch6.addConstraint(Sketcher.Constraint("Vertical", 1, 2, 7, 2))
sketch6.addConstraint(Sketcher.Constraint("Vertical", 7, 2, 8, 2))
sketch6.addConstraint(Sketcher.Constraint("Vertical", 6, 2, 11, 2))
sketch6.addConstraint(Sketcher.Constraint("Vertical", 11, 2, 13, 2))
sketch6.addConstraint(Sketcher.Constraint("Diameter", 3, Q("3 mm")))
sketch6.addConstraint(Sketcher.Constraint("Radius", 0, Q("3 mm")))
sketch6.addConstraint(Sketcher.Constraint("DistanceY", -1, 1, 7, 3, Q("35 mm")))
sketch6.addConstraint(Sketcher.Constraint("DistanceY", -1, 1, 0, 3, Q("117.6 mm")))
sketch6.addConstraint(Sketcher.Constraint("DistanceY", -1, 1, 4, 3, Q("116.3 mm")))
sketch6.addConstraint(Sketcher.Constraint("DistanceY", -1, 1, 11, 3, Q("41.4 mm")))
sketch6.addConstraint(Sketcher.Constraint("DistanceX", 0, 3, 4, 3, Q("48.3 mm")))
sketch6.addConstraint(Sketcher.Constraint("DistanceX", 0, 2, 0, 3, Q("2.5 mm")))
sketch6.addConstraint(Sketcher.Constraint("DistanceX", 5, 3, 4, 2, Q("2.5 mm")))
sketch6.addConstraint(Sketcher.Constraint("DistanceX", 0, 3, -1, 1, Q("24.15 mm")))
pad5 = body.newObject("PartDesign::Pad", "Pad004")
pad5.Profile = sketch6
pad5.Length = 4

sketch7 = body.newObject("Sketcher::SketchObject", "Sketch006")
sketch7.AttachmentSupport = (doc.getObject("XY_Plane"), [""])
sketch7.MapMode = "FlatFace"
sketch7.AttachmentOffset = App.Placement(Vector(0, 0, 2), App.Rotation())
sketch7.addGeometry(Part.Circle(Vector(-24.1, 35, 0), Vector(0, 0, 1), 1.5), False)
sketch7.addGeometry(Part.Circle(Vector(-24.1, 117.6, 0), Vector(0, 0, 1), 1.5), False)
sketch7.addConstraint(Sketcher.Constraint("Equal", 0, 1))
sketch7.addConstraint(Sketcher.Constraint("Vertical", 0, 3, 1, 3))
sketch7.addConstraint(Sketcher.Constraint("Diameter", 0, Q("3 mm")))
sketch7.addConstraint(Sketcher.Constraint("DistanceY", -1, 1, 0, 3, Q("35 mm")))
sketch7.addConstraint(Sketcher.Constraint("DistanceY", -1, 1, 1, 3, Q("117.6 mm")))
sketch7.addConstraint(Sketcher.Constraint("DistanceX", 0, 3, -1, 1, Q("24.15 mm")))
pad6 = body.newObject("PartDesign::Pad", "Pad005")
pad6.Profile = sketch7
pad6.Length = 8

sketch8 = body.newObject("Sketcher::SketchObject", "Sketch007")
sketch8.AttachmentSupport = (doc.getObject("XY_Plane"), [""])
sketch8.MapMode = "FlatFace"
sketch8.AttachmentOffset = App.Placement(Vector(0, 0, 2), App.Rotation())
sketch8.addGeometry(Part.Circle(Vector(24.1, 41.4, 0), Vector(0, 0, 1), 1.5), False)
sketch8.addConstraint(Sketcher.Constraint("Diameter", 0, Q("3 mm")))
sketch8.addConstraint(Sketcher.Constraint("DistanceY", -1, 1, 0, 3, Q("41.4 mm")))
sketch8.addConstraint(Sketcher.Constraint("DistanceX", -1, 1, 0, 3, Q("24.15 mm")))
pad7 = body.newObject("PartDesign::Pad", "Pad006")
pad7.Profile = sketch8
pad7.Length = 8

sketch9 = body.newObject("Sketcher::SketchObject", "Sketch008")
sketch9.AttachmentSupport = (doc.getObject("YZ_Plane"), [""])
sketch9.MapMode = "FlatFace"
sketch9.AttachmentOffset = App.Placement(Vector(0, 0, 38), App.Rotation())
sketch9.addGeometry(Part.LineSegment(Vector(118, 70, 0), Vector(118, 2, 0)), False)
sketch9.addGeometry(Part.LineSegment(Vector(118, 2, 0), Vector(116, 2, 0)), False)
sketch9.addGeometry(Part.LineSegment(Vector(116, 2, 0), Vector(116, 70, 0)), False)
sketch9.addGeometry(Part.LineSegment(Vector(116, 70, 0), Vector(118, 70, 0)), False)
sketch9.addGeometry(Part.LineSegment(Vector(22, 70, 0), Vector(22, 2, 0)), False)
sketch9.addGeometry(Part.LineSegment(Vector(22, 2, 0), Vector(20, 2, 0)), False)
sketch9.addGeometry(Part.LineSegment(Vector(20, 2, 0), Vector(20, 70, 0)), False)
sketch9.addGeometry(Part.LineSegment(Vector(20, 70, 0), Vector(22, 70, 0)), False)
sketch9.addConstraint(Sketcher.Constraint("Coincident", 0, 2, 1, 1))
sketch9.addConstraint(Sketcher.Constraint("Coincident", 1, 2, 2, 1))
sketch9.addConstraint(Sketcher.Constraint("Coincident", 2, 2, 3, 1))
sketch9.addConstraint(Sketcher.Constraint("Coincident", 3, 2, 0, 1))
sketch9.addConstraint(Sketcher.Constraint("Coincident", 4, 2, 5, 1))
sketch9.addConstraint(Sketcher.Constraint("Coincident", 5, 2, 6, 1))
sketch9.addConstraint(Sketcher.Constraint("Coincident", 6, 2, 7, 1))
sketch9.addConstraint(Sketcher.Constraint("Coincident", 7, 2, 4, 1))
sketch9.addConstraint(Sketcher.Constraint("Vertical", 0))
sketch9.addConstraint(Sketcher.Constraint("Horizontal", 1))
sketch9.addConstraint(Sketcher.Constraint("Vertical", 2))
sketch9.addConstraint(Sketcher.Constraint("Horizontal", 3))
sketch9.addConstraint(Sketcher.Constraint("Vertical", 4))
sketch9.addConstraint(Sketcher.Constraint("Horizontal", 5))
sketch9.addConstraint(Sketcher.Constraint("Vertical", 6))
sketch9.addConstraint(Sketcher.Constraint("Horizontal", 7))
sketch9.addConstraint(Sketcher.Constraint("Horizontal", 1, 2, 4, 2))
sketch9.addConstraint(Sketcher.Constraint("Horizontal", 3, 2, 6, 2))
sketch9.addConstraint(Sketcher.Constraint("Equal", 3, 5))
sketch9.addConstraint(Sketcher.Constraint("DistanceX", 1, 2, 1, 1, Q("2 mm")))
sketch9.addConstraint(Sketcher.Constraint("DistanceY", 0, 2, 0, 1, Q("68 mm")))
sketch9.addConstraint(Sketcher.Constraint("DistanceX", -1, 1, 0, 2, Q("118 mm")))
sketch9.addConstraint(Sketcher.Constraint("DistanceY", -1, 1, 0, 2, Q("2 mm")))
sketch9.addConstraint(Sketcher.Constraint("DistanceX", -1, 1, 4, 2, Q("22 mm")))
pad8 = body.newObject("PartDesign::Pad", "Pad007")
pad8.Profile = sketch9
pad8.Length = 3
pad8.Reversed = True

sketch10 = body.newObject("Sketcher::SketchObject", "Sketch009")
sketch10.AttachmentSupport = (doc.getObject("YZ_Plane"), [""])
sketch10.MapMode = "FlatFace"
sketch10.AttachmentOffset = App.Placement(Vector(0, 0, -38), App.Rotation())
sketch10.addGeometry(Part.LineSegment(Vector(20, 70, 0), Vector(20, 2, 0)), False)
sketch10.addGeometry(Part.LineSegment(Vector(20, 2, 0), Vector(22, 2, 0)), False)
sketch10.addGeometry(Part.LineSegment(Vector(22, 2, 0), Vector(22, 70, 0)), False)
sketch10.addGeometry(Part.LineSegment(Vector(22, 70, 0), Vector(20, 70, 0)), False)
sketch10.addGeometry(Part.LineSegment(Vector(116, 70, 0), Vector(116, 2, 0)), False)
sketch10.addGeometry(Part.LineSegment(Vector(116, 2, 0), Vector(118, 2, 0)), False)
sketch10.addGeometry(Part.LineSegment(Vector(118, 2, 0), Vector(118, 70, 0)), False)
sketch10.addGeometry(Part.LineSegment(Vector(118, 70, 0), Vector(116, 70, 0)), False)
sketch10.addConstraint(Sketcher.Constraint("Coincident", 0, 2, 1, 1))
sketch10.addConstraint(Sketcher.Constraint("Coincident", 1, 2, 2, 1))
sketch10.addConstraint(Sketcher.Constraint("Coincident", 2, 2, 3, 1))
sketch10.addConstraint(Sketcher.Constraint("Coincident", 3, 2, 0, 1))
sketch10.addConstraint(Sketcher.Constraint("Coincident", 4, 2, 5, 1))
sketch10.addConstraint(Sketcher.Constraint("Coincident", 5, 2, 6, 1))
sketch10.addConstraint(Sketcher.Constraint("Coincident", 6, 2, 7, 1))
sketch10.addConstraint(Sketcher.Constraint("Coincident", 7, 2, 4, 1))
sketch10.addConstraint(Sketcher.Constraint("Vertical", 0))
sketch10.addConstraint(Sketcher.Constraint("Horizontal", 1))
sketch10.addConstraint(Sketcher.Constraint("Vertical", 2))
sketch10.addConstraint(Sketcher.Constraint("Horizontal", 3))
sketch10.addConstraint(Sketcher.Constraint("Vertical", 4))
sketch10.addConstraint(Sketcher.Constraint("Horizontal", 5))
sketch10.addConstraint(Sketcher.Constraint("Vertical", 6))
sketch10.addConstraint(Sketcher.Constraint("Horizontal", 7))
sketch10.addConstraint(Sketcher.Constraint("Horizontal", 1, 2, 4, 2))
sketch10.addConstraint(Sketcher.Constraint("Horizontal", 3, 2, 6, 2))
sketch10.addConstraint(Sketcher.Constraint("Equal", 3, 5))
sketch10.addConstraint(Sketcher.Constraint("DistanceX", 1, 1, 1, 2, Q("2 mm")))
sketch10.addConstraint(Sketcher.Constraint("DistanceY", 0, 2, 0, 1, Q("68 mm")))
sketch10.addConstraint(Sketcher.Constraint("DistanceX", -1, 1, 0, 2, Q("20 mm")))
sketch10.addConstraint(Sketcher.Constraint("DistanceY", -1, 1, 0, 2, Q("2 mm")))
sketch10.addConstraint(Sketcher.Constraint("DistanceX", -1, 1, 4, 2, Q("116 mm")))
pad9 = body.newObject("PartDesign::Pad", "Pad008")
pad9.Profile = sketch10
pad9.Length = 3

doc.recompute()
